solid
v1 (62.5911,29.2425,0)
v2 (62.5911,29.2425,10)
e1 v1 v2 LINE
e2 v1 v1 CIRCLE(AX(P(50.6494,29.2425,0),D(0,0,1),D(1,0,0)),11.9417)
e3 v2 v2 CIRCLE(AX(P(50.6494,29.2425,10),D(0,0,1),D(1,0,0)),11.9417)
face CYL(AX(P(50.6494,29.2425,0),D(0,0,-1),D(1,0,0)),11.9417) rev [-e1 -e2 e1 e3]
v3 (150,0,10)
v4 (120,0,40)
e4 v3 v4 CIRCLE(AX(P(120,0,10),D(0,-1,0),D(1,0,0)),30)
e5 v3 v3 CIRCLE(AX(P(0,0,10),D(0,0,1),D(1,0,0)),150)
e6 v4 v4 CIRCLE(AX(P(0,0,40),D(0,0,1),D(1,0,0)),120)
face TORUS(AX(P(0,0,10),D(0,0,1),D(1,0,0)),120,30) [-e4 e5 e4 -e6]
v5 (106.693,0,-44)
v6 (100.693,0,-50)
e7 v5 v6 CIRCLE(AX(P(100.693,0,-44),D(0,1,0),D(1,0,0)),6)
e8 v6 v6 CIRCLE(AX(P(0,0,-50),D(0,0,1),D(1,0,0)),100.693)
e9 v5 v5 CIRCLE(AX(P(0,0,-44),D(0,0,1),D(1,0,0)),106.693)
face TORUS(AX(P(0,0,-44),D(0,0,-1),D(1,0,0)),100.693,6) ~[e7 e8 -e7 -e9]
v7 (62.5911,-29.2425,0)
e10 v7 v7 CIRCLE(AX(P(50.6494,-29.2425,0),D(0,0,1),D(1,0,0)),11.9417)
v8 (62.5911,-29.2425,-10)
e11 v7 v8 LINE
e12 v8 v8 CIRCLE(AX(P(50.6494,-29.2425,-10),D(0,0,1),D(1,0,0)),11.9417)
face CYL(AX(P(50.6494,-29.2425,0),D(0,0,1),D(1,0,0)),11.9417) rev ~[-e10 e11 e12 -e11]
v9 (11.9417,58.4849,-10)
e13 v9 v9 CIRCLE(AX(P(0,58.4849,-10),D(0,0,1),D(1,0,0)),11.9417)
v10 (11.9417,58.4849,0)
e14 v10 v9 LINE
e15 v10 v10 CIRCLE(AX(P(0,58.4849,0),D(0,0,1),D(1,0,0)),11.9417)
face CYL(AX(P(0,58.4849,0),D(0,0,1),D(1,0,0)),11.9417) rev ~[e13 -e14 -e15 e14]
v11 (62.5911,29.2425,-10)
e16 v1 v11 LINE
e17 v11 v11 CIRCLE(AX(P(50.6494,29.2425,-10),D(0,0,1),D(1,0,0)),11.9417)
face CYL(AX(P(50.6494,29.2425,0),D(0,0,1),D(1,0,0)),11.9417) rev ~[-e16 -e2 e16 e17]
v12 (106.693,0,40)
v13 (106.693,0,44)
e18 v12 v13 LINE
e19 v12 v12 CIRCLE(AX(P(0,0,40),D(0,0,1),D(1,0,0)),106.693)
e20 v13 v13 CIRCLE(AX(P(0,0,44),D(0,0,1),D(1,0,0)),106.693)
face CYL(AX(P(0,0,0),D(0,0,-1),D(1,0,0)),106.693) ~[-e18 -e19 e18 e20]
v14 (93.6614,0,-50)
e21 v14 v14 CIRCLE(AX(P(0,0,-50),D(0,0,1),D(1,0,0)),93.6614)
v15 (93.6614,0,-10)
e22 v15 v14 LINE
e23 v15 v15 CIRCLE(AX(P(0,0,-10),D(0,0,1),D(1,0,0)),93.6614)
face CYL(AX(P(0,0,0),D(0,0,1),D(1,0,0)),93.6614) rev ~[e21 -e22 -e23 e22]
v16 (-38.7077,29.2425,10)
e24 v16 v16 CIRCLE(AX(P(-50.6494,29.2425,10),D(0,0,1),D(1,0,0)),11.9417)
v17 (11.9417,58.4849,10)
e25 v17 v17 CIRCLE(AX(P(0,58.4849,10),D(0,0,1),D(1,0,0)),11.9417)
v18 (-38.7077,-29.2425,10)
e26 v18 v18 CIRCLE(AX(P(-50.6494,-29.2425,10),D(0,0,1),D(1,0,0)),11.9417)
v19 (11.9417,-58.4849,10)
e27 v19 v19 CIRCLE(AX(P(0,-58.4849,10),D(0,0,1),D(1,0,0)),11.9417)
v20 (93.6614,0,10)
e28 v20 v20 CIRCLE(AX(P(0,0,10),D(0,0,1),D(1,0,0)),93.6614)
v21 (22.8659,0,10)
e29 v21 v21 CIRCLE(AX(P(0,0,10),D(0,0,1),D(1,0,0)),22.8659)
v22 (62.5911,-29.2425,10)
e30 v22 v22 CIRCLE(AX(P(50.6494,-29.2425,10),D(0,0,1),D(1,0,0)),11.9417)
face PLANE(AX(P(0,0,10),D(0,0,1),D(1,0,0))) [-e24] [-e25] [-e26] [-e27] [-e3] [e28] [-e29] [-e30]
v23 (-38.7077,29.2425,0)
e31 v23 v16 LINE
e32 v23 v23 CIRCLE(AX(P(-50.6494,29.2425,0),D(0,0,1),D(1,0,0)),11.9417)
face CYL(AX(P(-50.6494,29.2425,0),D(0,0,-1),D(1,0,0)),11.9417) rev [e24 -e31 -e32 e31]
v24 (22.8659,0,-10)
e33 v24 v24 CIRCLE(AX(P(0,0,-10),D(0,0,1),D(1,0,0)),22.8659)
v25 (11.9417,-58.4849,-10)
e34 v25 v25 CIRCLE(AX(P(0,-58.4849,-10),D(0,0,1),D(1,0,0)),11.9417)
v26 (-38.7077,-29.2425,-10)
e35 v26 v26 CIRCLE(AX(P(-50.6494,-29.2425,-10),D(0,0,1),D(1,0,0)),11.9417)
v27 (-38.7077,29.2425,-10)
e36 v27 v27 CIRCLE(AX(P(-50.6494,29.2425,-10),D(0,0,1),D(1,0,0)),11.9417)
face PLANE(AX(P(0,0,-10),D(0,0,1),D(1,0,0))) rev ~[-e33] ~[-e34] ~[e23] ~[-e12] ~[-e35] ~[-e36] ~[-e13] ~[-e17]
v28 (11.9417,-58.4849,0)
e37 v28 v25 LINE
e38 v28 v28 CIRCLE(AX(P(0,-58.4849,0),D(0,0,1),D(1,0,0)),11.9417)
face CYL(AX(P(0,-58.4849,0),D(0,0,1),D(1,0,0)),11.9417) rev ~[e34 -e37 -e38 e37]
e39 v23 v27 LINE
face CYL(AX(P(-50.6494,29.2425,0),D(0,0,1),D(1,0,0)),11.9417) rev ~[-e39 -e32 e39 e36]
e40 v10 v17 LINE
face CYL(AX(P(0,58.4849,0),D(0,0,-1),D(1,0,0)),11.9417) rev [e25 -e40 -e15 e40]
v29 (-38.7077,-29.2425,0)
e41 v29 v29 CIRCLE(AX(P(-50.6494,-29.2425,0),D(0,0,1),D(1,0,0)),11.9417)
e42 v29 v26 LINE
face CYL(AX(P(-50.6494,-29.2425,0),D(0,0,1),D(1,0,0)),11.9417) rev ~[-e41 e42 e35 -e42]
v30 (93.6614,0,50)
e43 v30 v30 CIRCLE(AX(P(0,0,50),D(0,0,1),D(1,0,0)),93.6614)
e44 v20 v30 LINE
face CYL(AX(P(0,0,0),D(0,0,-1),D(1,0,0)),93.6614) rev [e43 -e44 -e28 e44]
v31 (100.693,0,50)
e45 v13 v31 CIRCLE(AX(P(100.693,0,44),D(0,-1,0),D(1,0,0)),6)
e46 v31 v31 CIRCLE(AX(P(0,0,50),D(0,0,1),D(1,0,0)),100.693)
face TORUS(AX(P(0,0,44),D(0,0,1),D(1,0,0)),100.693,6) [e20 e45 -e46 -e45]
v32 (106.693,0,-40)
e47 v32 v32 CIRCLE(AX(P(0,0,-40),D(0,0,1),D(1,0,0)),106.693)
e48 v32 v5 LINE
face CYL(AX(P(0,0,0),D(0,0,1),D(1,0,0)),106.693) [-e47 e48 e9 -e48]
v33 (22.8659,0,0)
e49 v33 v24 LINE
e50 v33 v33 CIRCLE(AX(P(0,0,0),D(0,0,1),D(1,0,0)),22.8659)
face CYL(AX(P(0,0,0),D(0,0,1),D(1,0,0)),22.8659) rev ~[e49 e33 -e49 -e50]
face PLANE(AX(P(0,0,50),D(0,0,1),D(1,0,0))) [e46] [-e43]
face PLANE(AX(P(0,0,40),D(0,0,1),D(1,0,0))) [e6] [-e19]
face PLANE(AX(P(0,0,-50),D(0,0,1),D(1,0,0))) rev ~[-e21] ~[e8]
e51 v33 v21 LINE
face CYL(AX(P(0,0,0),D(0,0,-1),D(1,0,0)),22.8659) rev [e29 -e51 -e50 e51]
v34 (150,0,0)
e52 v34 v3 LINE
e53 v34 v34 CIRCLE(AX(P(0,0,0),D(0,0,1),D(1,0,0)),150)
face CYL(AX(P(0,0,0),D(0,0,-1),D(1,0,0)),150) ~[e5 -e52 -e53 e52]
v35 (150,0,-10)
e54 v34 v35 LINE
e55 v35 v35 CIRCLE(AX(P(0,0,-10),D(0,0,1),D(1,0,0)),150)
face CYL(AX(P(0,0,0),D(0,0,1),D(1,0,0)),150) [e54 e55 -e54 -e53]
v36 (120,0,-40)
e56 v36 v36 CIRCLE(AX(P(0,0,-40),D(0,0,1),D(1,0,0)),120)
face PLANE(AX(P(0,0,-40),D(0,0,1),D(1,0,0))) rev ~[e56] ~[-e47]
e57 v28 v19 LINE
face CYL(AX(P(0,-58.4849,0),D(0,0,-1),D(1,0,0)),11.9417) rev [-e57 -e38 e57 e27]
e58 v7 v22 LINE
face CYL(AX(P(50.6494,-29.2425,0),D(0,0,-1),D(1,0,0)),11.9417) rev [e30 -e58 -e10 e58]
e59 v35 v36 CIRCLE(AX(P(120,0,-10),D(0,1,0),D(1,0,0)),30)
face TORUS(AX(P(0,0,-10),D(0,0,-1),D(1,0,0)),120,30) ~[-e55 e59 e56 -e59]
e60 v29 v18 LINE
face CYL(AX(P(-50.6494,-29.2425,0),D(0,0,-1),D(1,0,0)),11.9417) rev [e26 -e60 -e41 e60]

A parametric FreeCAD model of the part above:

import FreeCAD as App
import Part
import Sketcher
from FreeCAD import Vector
Q = App.Units.Quantity


def edges_at(feature, points):
    """Names of the edges that pass closest to the given points."""
    edges = feature.Shape.Edges
    near = lambda p: min(range(len(edges)), key=lambda i: edges[i].distToShape(Part.Vertex(*p))[0])
    return sorted({f"Edge{near(p) + 1}" for p in points})

doc = App.newDocument("Part")
body = doc.addObject("PartDesign::Body", "Body")

# Sketch on XY plane
sketch1 = body.newObject("Sketcher::SketchObject", "Sketch")
sketch1.AttachmentSupport = (doc.getObject("XY_Plane"), [""])
sketch1.MapMode = "FlatFace"
sketch1.addGeometry([
    Part.Circle(Vector(0, 0, 0), Vector(0, 0, 1), 150),
    Part.Circle(Vector(0, 0, 0), Vector(0, 0, 1), 107),
], False)
sketch1.addConstraint([
    Sketcher.Constraint("Coincident", 0, 3, -1, 1),
    Sketcher.Constraint("Coincident", 1, 3, -1, 1),
    Sketcher.Constraint("Diameter", 0, Q("300 mm")),
    Sketcher.Constraint("Diameter", 1, Q("213.386 mm")),
])
pad1 = body.newObject("PartDesign::Pad", "Pad")
pad1.Profile = sketch1
pad1.Length = 80
pad1.Midplane = True
doc.recompute()

fillet = body.newObject("PartDesign::Fillet", "Fillet")
fillet.Base = (pad1, edges_at(pad1, [(-150, 0, 40), (-150, 0, -40)]))
fillet.Radius = 30

# Sketch on XY plane
sketch2 = body.newObject("Sketcher::SketchObject", "Sketch001")
sketch2.AttachmentSupport = (doc.getObject("XY_Plane"), [""])
sketch2.MapMode = "FlatFace"
sketch2.addGeometry([
    Part.Circle(Vector(0, 0, 0), Vector(0, 0, 1), 107),
    Part.Circle(Vector(0, 0, 0), Vector(0, 0, 1), 94),
], False)
sketch2.addConstraint([
    Sketcher.Constraint("Coincident", 0, 3, -1, 1),
    Sketcher.Constraint("Coincident", 1, 3, -1, 1),
    Sketcher.Constraint("Diameter", 0, Q("213.386 mm")),
    Sketcher.Constraint("Diameter", 1, Q("187.3228 mm")),
])
pad2 = body.newObject("PartDesign::Pad", "Pad001")
pad2.Profile = sketch2
pad2.Length = 100
pad2.Midplane = True
doc.recompute()

fillet2 = body.newObject("PartDesign::Fillet", "Fillet001")
fillet2.Base = (pad2, edges_at(pad2, [(-106.693, 0, -50), (-106.693, 0, 50)]))
fillet2.Radius = 6

# Sketch on XY plane
sketch3 = body.newObject("Sketcher::SketchObject", "Sketch002")
sketch3.AttachmentSupport = (doc.getObject("XY_Plane"), [""])
sketch3.MapMode = "FlatFace"
sketch3.addGeometry([
    Part.Circle(Vector(0, 0, 0), Vector(0, 0, 1), 94),  # 0
    Part.Circle(Vector(-51, -29, 0), Vector(0, 0, 1), 12),  # 1
    Part.Circle(Vector(0, -58, 0), Vector(0, 0, 1), 12),  # 2
    Part.Circle(Vector(51, -29, 0), Vector(0, 0, 1), 12),  # 3
    Part.Circle(Vector(-51, 29, 0), Vector(0, 0, 1), 12),  # 4
    Part.Circle(Vector(0, 0, 0), Vector(0, 0, 1), 23),  # 5
    Part.Circle(Vector(51, 29, 0), Vector(0, 0, 1), 12),  # 6
    Part.Circle(Vector(0, 58, 0), Vector(0, 0, 1), 12),  # 7
], False)
sketch3.addConstraint([
    Sketcher.Constraint("Coincident", 0, 3, -1, 1),
    Sketcher.Constraint("Coincident", 5, 3, -1, 1),
    Sketcher.Constraint("Equal", 1, 2),
    Sketcher.Constraint("Equal", 2, 3),
    Sketcher.Constraint("Equal", 3, 4),
    Sketcher.Constraint("Equal", 4, 6),
    Sketcher.Constraint("Equal", 6, 7),
    Sketcher.Constraint("Symmetric", 3, 3, 4, 3, -1, 1),
    Sketcher.Constraint("Symmetric", 1, 3, 6, 3, -1, 1),
    Sketcher.Constraint("Symmetric", 2, 3, 7, 3, -1, 1),
    Sketcher.Constraint("Symmetric", 1, 3, 3, 3, -2),
    Sketcher.Constraint("PointOnObject", 2, 3, -2),
    Sketcher.Constraint("Diameter", 0, Q("187.3228 mm")),
    Sketcher.Constraint("Diameter", 1, Q("23.8834 mm")),
    Sketcher.Constraint("Diameter", 5, Q("45.7318 mm")),
    Sketcher.Constraint("DistanceY", 2, 3, -1, 1, Q("58.485 mm")),
    Sketcher.Constraint("DistanceY", 1, 3, 4, 3, Q("58.485 mm")),
    Sketcher.Constraint("DistanceX", 1, 3, -1, 1, Q("50.6494 mm")),
])
pad3 = body.newObject("PartDesign::Pad", "Pad002")
pad3.Profile = sketch3
pad3.Length = 20
pad3.Midplane = True

doc.recompute()
